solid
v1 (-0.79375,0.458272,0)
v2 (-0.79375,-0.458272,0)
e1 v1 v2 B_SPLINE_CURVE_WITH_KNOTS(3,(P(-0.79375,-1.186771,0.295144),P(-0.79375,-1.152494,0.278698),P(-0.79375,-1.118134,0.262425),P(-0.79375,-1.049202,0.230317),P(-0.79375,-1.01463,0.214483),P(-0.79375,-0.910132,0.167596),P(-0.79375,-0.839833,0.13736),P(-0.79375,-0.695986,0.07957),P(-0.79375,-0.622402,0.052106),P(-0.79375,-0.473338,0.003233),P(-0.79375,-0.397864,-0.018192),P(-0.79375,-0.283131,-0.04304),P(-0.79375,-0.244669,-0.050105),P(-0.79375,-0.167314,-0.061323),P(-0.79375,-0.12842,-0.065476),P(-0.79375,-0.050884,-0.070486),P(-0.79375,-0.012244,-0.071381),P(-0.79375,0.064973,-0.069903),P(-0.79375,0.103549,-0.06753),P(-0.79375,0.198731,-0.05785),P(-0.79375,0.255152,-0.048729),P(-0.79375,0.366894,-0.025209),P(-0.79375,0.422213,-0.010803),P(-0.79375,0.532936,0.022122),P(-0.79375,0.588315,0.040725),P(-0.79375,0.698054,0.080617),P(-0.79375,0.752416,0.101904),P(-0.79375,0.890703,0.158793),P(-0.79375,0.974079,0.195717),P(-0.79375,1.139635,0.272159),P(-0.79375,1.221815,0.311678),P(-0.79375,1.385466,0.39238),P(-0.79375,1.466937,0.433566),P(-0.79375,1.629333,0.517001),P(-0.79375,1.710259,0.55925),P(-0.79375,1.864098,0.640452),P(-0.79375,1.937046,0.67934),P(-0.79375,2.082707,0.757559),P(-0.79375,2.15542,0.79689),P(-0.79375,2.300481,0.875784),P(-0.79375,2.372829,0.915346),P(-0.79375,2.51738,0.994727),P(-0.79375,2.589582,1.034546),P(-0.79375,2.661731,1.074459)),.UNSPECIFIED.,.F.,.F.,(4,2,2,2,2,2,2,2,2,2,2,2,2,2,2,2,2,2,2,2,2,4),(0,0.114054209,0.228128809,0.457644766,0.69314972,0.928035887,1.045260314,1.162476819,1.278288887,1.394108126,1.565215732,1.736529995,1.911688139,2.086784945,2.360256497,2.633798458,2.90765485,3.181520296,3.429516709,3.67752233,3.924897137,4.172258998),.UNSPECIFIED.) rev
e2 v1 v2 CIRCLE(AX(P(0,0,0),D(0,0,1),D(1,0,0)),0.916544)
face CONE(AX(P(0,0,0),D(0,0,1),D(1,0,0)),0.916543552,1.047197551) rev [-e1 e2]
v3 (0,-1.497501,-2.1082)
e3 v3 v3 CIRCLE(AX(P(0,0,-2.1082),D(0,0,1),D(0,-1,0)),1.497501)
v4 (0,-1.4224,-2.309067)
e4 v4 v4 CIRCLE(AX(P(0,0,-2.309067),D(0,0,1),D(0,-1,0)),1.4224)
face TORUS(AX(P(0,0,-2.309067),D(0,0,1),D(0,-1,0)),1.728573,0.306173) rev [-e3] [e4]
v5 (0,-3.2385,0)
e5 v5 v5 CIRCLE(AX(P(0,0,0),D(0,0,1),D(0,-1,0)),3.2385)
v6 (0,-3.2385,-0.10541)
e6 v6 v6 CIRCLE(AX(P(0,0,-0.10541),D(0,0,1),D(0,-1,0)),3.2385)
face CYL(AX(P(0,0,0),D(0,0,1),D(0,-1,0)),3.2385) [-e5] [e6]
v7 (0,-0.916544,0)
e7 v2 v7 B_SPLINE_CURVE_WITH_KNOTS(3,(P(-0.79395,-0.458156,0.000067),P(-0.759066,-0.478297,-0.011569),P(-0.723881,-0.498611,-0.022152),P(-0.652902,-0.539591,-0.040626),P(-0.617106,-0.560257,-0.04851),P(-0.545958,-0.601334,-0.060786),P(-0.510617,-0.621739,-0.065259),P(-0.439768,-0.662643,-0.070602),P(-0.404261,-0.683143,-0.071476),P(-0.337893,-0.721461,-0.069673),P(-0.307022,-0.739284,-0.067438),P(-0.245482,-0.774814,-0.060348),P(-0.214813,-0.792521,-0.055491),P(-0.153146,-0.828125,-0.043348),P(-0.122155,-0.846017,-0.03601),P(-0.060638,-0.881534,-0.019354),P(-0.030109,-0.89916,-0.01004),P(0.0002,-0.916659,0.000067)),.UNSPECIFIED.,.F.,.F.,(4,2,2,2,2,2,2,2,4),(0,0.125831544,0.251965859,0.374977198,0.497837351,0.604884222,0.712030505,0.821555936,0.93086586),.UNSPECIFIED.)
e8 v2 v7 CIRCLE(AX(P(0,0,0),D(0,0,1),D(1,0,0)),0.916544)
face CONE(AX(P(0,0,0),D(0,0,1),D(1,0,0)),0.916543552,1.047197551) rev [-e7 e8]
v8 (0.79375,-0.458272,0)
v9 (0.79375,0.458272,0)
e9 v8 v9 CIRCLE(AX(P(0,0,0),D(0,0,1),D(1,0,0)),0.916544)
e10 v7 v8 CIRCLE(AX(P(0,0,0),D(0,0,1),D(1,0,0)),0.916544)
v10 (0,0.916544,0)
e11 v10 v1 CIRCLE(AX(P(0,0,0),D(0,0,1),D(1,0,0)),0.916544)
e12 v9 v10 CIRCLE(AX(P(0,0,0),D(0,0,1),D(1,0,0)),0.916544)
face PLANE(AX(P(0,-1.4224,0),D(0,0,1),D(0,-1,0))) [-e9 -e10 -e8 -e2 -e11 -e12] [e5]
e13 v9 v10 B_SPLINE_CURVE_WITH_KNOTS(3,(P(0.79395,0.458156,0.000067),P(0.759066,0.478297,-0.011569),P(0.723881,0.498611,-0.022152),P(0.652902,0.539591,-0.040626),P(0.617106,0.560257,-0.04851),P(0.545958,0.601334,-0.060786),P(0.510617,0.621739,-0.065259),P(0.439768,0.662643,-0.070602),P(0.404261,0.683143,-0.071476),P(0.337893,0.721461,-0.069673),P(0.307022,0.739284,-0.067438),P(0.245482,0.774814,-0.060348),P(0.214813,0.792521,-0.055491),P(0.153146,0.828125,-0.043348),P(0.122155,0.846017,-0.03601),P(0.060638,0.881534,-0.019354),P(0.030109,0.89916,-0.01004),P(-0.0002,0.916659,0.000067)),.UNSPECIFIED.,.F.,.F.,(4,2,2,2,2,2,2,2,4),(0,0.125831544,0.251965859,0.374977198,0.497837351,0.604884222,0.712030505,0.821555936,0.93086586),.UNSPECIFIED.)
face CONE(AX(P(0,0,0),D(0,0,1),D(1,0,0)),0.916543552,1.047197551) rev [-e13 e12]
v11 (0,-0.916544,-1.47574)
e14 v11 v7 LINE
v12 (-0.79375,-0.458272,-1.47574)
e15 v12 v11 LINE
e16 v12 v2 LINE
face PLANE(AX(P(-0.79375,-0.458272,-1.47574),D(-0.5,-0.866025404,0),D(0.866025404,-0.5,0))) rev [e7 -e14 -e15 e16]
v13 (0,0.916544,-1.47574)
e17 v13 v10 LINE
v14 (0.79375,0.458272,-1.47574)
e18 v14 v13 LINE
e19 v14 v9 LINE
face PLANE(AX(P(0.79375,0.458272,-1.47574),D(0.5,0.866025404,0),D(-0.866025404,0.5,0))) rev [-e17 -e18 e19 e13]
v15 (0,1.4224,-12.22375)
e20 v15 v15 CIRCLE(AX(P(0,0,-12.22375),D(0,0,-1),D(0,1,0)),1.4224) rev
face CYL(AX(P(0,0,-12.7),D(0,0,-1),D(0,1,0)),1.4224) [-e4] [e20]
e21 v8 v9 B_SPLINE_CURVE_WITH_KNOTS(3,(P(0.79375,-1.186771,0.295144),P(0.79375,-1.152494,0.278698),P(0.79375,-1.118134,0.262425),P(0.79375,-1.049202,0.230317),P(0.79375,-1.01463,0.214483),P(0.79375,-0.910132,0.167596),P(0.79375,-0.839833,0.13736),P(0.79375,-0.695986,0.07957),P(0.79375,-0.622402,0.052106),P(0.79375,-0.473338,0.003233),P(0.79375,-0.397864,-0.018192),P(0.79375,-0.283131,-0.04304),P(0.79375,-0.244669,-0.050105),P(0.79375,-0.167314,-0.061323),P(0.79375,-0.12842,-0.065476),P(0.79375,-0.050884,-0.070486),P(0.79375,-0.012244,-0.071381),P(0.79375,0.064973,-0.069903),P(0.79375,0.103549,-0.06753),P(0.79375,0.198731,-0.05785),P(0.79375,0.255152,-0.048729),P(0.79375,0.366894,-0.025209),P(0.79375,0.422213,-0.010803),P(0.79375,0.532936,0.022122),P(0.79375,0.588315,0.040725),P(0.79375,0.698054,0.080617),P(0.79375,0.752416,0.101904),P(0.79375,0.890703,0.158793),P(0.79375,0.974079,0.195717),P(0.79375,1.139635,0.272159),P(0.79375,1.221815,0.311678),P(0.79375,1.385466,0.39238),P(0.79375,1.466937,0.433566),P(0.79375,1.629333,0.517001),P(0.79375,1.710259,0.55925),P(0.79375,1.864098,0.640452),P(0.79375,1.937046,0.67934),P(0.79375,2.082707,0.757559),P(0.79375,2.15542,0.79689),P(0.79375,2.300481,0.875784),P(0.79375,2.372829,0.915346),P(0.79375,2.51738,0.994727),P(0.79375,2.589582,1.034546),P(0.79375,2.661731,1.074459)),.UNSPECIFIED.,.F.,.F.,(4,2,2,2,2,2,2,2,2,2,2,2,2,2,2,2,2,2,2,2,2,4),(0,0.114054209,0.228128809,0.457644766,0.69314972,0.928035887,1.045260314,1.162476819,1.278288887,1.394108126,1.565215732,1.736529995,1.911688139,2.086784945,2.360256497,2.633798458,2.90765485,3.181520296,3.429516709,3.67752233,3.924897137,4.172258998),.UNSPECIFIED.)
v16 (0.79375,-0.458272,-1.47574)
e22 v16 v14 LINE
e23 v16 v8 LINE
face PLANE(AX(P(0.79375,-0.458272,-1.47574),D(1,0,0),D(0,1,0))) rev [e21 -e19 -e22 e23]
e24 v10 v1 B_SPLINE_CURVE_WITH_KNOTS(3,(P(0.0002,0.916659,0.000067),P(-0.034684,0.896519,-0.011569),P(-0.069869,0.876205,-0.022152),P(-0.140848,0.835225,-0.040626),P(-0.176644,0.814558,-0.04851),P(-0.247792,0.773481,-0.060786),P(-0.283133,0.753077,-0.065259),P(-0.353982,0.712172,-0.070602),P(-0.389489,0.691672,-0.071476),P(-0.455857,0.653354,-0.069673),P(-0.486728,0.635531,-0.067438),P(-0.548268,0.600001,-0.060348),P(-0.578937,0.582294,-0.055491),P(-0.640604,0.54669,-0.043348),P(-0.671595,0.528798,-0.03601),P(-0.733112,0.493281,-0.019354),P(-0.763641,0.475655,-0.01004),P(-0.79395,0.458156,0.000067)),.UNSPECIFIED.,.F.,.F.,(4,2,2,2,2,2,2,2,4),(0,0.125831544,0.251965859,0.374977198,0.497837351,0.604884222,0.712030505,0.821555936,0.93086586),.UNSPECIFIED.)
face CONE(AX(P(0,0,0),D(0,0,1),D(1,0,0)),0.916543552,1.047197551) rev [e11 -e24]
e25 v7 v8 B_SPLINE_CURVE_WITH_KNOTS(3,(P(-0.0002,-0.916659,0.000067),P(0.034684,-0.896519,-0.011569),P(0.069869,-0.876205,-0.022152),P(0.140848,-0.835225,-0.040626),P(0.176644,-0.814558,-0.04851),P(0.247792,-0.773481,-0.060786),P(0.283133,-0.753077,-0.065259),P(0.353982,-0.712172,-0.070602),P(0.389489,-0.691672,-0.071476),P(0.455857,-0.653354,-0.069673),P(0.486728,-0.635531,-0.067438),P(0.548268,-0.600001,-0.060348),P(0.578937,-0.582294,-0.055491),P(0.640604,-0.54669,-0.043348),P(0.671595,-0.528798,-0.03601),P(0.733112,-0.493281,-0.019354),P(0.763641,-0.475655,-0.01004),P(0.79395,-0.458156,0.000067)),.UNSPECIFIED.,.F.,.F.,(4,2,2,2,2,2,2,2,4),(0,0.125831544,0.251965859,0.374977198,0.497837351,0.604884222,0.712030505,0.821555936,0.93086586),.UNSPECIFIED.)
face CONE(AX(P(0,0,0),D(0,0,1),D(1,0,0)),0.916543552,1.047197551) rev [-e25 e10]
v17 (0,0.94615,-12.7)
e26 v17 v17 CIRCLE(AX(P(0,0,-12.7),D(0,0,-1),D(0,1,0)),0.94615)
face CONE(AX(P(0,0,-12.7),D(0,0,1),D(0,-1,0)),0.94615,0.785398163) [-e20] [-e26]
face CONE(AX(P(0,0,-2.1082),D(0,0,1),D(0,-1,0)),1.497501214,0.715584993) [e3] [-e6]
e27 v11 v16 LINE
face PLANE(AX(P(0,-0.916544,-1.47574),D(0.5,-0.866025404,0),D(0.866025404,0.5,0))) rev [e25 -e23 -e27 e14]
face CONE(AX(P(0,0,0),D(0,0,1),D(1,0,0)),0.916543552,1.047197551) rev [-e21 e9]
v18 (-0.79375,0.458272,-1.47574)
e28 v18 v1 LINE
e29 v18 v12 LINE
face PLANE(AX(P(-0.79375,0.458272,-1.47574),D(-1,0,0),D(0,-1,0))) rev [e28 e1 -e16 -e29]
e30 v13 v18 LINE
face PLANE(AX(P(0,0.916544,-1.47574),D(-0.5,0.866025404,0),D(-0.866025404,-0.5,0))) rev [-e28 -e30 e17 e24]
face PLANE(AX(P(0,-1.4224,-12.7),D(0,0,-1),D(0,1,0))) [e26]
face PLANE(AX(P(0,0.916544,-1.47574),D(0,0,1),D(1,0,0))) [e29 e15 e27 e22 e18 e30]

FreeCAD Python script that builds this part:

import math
import FreeCAD as App
import Part
import Sketcher

V = App.Vector
Q = App.Units.Quantity


def edges_at(feature, points):
    """Names of the edges that pass closest to the given points."""
    edges = feature.Shape.Edges
    near = lambda p: min(range(len(edges)), key=lambda i: edges[i].distToShape(Part.Vertex(*p))[0])
    return sorted({f"Edge{near(p) + 1}" for p in points})


def add_polygon(sketch, points):
    """Adds a closed chain of lines whose ends are joined by coincident constraints."""
    first, n = sketch.GeometryCount, len(points)
    for a, b in zip(points, points[1:] + points[:1]):
        sketch.addGeometry(Part.LineSegment(App.Vector(*a, 0), App.Vector(*b, 0)), False)
    for i in range(n):
        sketch.addConstraint(Sketcher.Constraint("Coincident", first + i, 2, first + (i + 1) % n, 1))

doc = App.newDocument("Part")
body = doc.addObject("PartDesign::Body", "Body")

sketch1 = body.newObject("Sketcher::SketchObject", "Sketch")
sketch1.AttachmentSupport = (doc.getObject("YZ_Plane"), [""])
sketch1.MapMode = "FlatFace"
add_polygon(sketch1, [(1.4, 0), (0, 0), (0, -12.7), (1.4, -12.7)])
sketch1.addConstraint(Sketcher.Constraint("Horizontal", 0))
sketch1.addConstraint(Sketcher.Constraint("Vertical", 1))
sketch1.addConstraint(Sketcher.Constraint("Horizontal", 2))
sketch1.addConstraint(Sketcher.Constraint("Vertical", 3))
sketch1.addConstraint(Sketcher.Constraint("Coincident", 0, 2, -1, 1))
sketch1.addConstraint(Sketcher.Constraint("DistanceY", 1, 2, 1, 1, Q("0.5 in")))
sketch1.addConstraint(Sketcher.Constraint("DistanceX", 0, 2, 0, 1, Q("0.056 in")))
revolution = body.newObject("PartDesign::Revolution", "Revolution")
revolution.Profile = sketch1
revolution.ReferenceAxis = (sketch1, ["V_Axis"])
revolution.Angle = 360
doc.recompute()

chamfer = body.newObject("PartDesign::Chamfer", "Chamfer")
chamfer.Base = (revolution, edges_at(revolution, [(0, -1.422, -12.7)]))
chamfer.Size = 0.47625

sketch2 = body.newObject("Sketcher::SketchObject", "Sketch001")
sketch2.AttachmentSupport = (doc.getObject("YZ_Plane"), [""])
sketch2.MapMode = "FlatFace"
sketch2.addGeometry(Part.LineSegment(V(3.24, -0.11, 0), V(3.24, 0, 0)), False)
sketch2.addGeometry(Part.LineSegment(V(3.24, 0, 0), V(0, 0, 0)), False)
sketch2.addGeometry(Part.LineSegment(V(0, 0, 0), V(0, -2.31, 0)), False)
sketch2.addGeometry(Part.LineSegment(V(0, -2.31, 0), V(1.42, -2.31, 0)), False)
sketch2.addGeometry(Part.ArcOfCircle(Part.Circle(V(1.73, -2.31, 0), V(0, 0, 1), 0.31), math.radians(139), math.radians(180)), False)
sketch2.addGeometry(Part.LineSegment(V(1.5, -2.11, 0), V(3.24, -0.11, 0)), False)
sketch2.addConstraint(Sketcher.Constraint("Coincident", 0, 2, 1, 1))
sketch2.addConstraint(Sketcher.Constraint("Coincident", 1, 2, 2, 1))
sketch2.addConstraint(Sketcher.Constraint("Coincident", 2, 2, 3, 1))
sketch2.addConstraint(Sketcher.Constraint("Coincident", 3, 2, 4, 2))
sketch2.addConstraint(Sketcher.Constraint("Tangent", 4, 1, 5, 1))
sketch2.addConstraint(Sketcher.Constraint("Coincident", 5, 2, 0, 1))
sketch2.addConstraint(Sketcher.Constraint("Vertical", 0))
sketch2.addConstraint(Sketcher.Constraint("Horizontal", 1))
sketch2.addConstraint(Sketcher.Constraint("Vertical", 2))
sketch2.addConstraint(Sketcher.Constraint("Horizontal", 3))
sketch2.addConstraint(Sketcher.Constraint("Coincident", 1, 2, -1, 1))
sketch2.addConstraint(Sketcher.Constraint("Horizontal", 4, 3, 2, 2))
sketch2.addConstraint(Sketcher.Constraint("Angle", 5, Q("49 deg")))
sketch2.addConstraint(Sketcher.Constraint("DistanceX", 3, 1, 3, 2, Q("0.056 in")))
sketch2.addConstraint(Sketcher.Constraint("DistanceX", 1, 2, 1, 1, Q("0.1275 in")))
sketch2.addConstraint(Sketcher.Constraint("DistanceY", 4, 1, -1, 1, Q("0.083 in")))
sketch2.addConstraint(Sketcher.Constraint("Radius", 4, 0.306173))
revolution2 = body.newObject("PartDesign::Revolution", "Revolution001")
revolution2.Profile = sketch2
revolution2.ReferenceAxis = (sketch2, ["V_Axis"])
revolution2.Angle = 360

sketch3 = body.newObject("Sketcher::SketchObject", "Sketch002")
sketch3.AttachmentSupport = (doc.getObject("XY_Plane"), [""])
sketch3.MapMode = "FlatFace"
add_polygon(sketch3, [(0, 0.9), (-0.8, 0.5), (-0.8, -0.5), (0, -0.9), (0.8, -0.5), (0.8, 0.5)])
sketch3.addConstraint(Sketcher.Constraint("Vertical", 1))
sketch3.addConstraint(Sketcher.Constraint("Vertical", 4))
sketch3.addConstraint(Sketcher.Constraint("Symmetric", 0, 2, 3, 2, -1, 1))
sketch3.addConstraint(Sketcher.Constraint("Symmetric", 2, 2, 5, 2, -1, 1))
sketch3.addConstraint(Sketcher.Constraint("PointOnObject", 2, 2, -2))
sketch3.addConstraint(Sketcher.Constraint("Parallel", 2, 5))
sketch3.addConstraint(Sketcher.Constraint("Horizontal", 1, 2, 3, 2))
sketch3.addConstraint(Sketcher.Constraint("Angle", 0, Q("-150 deg")))
sketch3.addConstraint(Sketcher.Constraint("DistanceX", 0, 2, -1, 1, Q("0.03125 in")))
sketch3.addConstraint(Sketcher.Constraint("DistanceY", 1, 2, 1, 1, 0.916544))
pocket1 = body.newObject("PartDesign::Pocket", "Pocket")
pocket1.Profile = sketch3
pocket1.Length = Q("0.0581 in")

sketch4 = body.newObject("Sketcher::SketchObject", "Sketch003")
sketch4.AttachmentSupport = (doc.getObject("YZ_Plane"), [""])
sketch4.MapMode = "FlatFace"
add_polygon(sketch4, [(0, 0), (-0.9, 0), (0, -0.5)])
sketch4.addConstraint(Sketcher.Constraint("Horizontal", 0))
sketch4.addConstraint(Sketcher.Constraint("Vertical", 2))
sketch4.addConstraint(Sketcher.Constraint("Coincident", 2, 2, -1, 1))
sketch4.addConstraint(Sketcher.Constraint("Angle", 1, Q("-30 deg")))
sketch4.addConstraint(Sketcher.Constraint("DistanceX", 0, 2, 0, 1, 0.916544))
groove = body.newObject("PartDesign::Groove", "Groove")
groove.Profile = sketch4
groove.ReferenceAxis = (sketch4, ["V_Axis"])
groove.Angle = 360

doc.recompute()
